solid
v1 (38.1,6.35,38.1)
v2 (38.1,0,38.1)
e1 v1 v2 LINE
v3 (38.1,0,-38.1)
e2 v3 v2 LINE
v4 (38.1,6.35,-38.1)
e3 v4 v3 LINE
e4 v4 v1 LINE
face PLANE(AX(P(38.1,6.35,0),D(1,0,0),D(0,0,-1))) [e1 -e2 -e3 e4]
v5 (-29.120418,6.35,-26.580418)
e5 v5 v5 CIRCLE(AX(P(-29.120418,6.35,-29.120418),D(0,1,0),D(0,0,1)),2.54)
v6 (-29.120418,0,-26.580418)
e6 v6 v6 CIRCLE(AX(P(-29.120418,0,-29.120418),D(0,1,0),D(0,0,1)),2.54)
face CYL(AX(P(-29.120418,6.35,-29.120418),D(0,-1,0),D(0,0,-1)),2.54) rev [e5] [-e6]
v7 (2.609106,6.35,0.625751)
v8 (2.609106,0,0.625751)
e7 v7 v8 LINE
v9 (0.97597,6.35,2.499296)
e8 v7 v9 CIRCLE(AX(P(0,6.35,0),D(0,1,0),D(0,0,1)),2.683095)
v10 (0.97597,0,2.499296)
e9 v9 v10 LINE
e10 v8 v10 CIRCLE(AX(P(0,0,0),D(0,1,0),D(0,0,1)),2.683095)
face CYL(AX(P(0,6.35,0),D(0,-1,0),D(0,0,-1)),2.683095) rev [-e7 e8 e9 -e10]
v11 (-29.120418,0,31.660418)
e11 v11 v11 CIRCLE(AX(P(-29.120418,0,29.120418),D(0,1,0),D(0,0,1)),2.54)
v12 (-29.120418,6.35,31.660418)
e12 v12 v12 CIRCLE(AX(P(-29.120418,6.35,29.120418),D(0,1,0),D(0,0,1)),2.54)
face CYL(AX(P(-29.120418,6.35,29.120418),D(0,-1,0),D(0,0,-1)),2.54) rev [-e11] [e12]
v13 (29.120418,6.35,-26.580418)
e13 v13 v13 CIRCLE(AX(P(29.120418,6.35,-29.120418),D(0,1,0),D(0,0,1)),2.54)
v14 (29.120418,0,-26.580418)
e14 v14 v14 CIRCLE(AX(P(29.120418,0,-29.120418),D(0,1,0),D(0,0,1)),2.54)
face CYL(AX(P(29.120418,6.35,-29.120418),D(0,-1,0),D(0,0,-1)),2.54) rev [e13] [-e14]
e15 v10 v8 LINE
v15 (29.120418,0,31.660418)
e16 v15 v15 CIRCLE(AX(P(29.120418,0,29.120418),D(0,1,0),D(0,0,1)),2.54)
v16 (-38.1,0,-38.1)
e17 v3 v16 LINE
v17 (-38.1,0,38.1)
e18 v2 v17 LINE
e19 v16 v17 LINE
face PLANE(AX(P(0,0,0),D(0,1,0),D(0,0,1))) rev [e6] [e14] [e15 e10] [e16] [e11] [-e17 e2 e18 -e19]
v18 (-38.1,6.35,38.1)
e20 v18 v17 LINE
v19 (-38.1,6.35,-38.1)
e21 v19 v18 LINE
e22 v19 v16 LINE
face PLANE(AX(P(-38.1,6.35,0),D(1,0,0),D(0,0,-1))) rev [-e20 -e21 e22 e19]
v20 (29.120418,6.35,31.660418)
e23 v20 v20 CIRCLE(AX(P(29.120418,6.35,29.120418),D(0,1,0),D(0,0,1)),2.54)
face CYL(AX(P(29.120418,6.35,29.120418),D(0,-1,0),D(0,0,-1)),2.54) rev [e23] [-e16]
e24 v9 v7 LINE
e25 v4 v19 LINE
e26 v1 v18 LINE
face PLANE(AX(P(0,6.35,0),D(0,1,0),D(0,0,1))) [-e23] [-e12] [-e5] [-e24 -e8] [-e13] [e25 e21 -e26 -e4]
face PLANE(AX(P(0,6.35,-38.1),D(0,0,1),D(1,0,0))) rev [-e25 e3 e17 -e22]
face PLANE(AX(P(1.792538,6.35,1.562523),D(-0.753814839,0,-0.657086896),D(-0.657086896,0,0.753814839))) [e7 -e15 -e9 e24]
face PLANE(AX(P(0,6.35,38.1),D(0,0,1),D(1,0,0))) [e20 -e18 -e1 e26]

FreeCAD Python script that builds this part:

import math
import FreeCAD as App
import Part
import Sketcher
from FreeCAD import Vector
Q = App.Units.Quantity


def add_polygon(sketch, points):
    """Adds a closed chain of lines whose ends are joined by coincident constraints."""
    first, n = sketch.GeometryCount, len(points)
    for a, b in zip(points, points[1:] + points[:1]):
        sketch.addGeometry(Part.LineSegment(App.Vector(*a, 0), App.Vector(*b, 0)), False)
    for i in range(n):
        sketch.addConstraint(Sketcher.Constraint("Coincident", first + i, 2, first + (i + 1) % n, 1))

doc = App.newDocument("Part")
body = doc.addObject("PartDesign::Body", "Body")

# Sketch on XZ plane
sketch1 = doc.addObject("Sketcher::SketchObject", "Sketch")
body.addObject(sketch1)
sketch1.AttachmentSupport = (doc.XZ_Plane, [""])
sketch1.MapMode = "FlatFace"
add_polygon(sketch1, [(-38.1, -38.1), (-38.1, 38.1), (38.1, 38.1), (38.1, -38.1)])  # lines 0-3
sketch1.addGeometry(Part.Circle(Vector(-29.1, 29.1, 0), Vector(0, 0, 1), 2.5), False)  # 4
sketch1.addGeometry(Part.Circle(Vector(29.1, 29.1, 0), Vector(0, 0, 1), 2.5), False)  # 5
sketch1.addGeometry(Part.ArcOfCircle(Part.Circle(Vector(0, 0, 0), Vector(0, 0, 1), 2.7), math.radians(69), math.radians(373)), False)  # 6
sketch1.addGeometry(Part.LineSegment(Vector(2.6, 0.6, 0), Vector(1, 2.5, 0)), False)  # 7
sketch1.addGeometry(Part.Circle(Vector(-29.1, -29.1, 0), Vector(0, 0, 1), 2.5), False)  # 8
sketch1.addGeometry(Part.Circle(Vector(29.1, -29.1, 0), Vector(0, 0, 1), 2.5), False)  # 9
sketch1.addConstraint([
    Sketcher.Constraint("Coincident", 6, 1, 7, 2),
    Sketcher.Constraint("Coincident", 7, 1, 6, 2),
    Sketcher.Constraint("Vertical", 0),
    Sketcher.Constraint("Horizontal", 1),
    Sketcher.Constraint("Vertical", 2),
    Sketcher.Constraint("Horizontal", 3),
    Sketcher.Constraint("Coincident", 6, 3, -1, 1),
    Sketcher.Constraint("Equal", 4, 5),
    Sketcher.Constraint("Equal", 5, 8),
    Sketcher.Constraint("Equal", 8, 9),
    Sketcher.Constraint("Symmetric", 5, 3, 8, 3, -1, 1),
    Sketcher.Constraint("Symmetric", 4, 3, 9, 3, -1, 1),
    Sketcher.Constraint("Symmetric", 0, 2, 2, 2, -1, 1),
    Sketcher.Constraint("Symmetric", 4, 3, 5, 3, -2),
    Sketcher.Constraint("Equal", 3, 0),
    Sketcher.Constraint("Diameter", 4, Q("0.2 in")),
    Sketcher.Constraint("DistanceX", 1, 1, 1, 2, Q("3 in")),
    Sketcher.Constraint("Radius", 6, 2.683095),
    Sketcher.Constraint("DistanceX", 4, 3, -1, 1, 29.120418),
    Sketcher.Constraint("DistanceY", -1, 1, 4, 3, 29.120418),
    Sketcher.Constraint("DistanceX", -1, 1, 6, 1, 0.97597),
    Sketcher.Constraint("DistanceY", -1, 1, 7, 1, 0.625751),
])
pad1 = doc.addObject("PartDesign::Pad", "Pad")
body.addObject(pad1)
pad1.Profile = sketch1
pad1.Length = Q("0.25 in")
pad1.Reversed = True

doc.recompute()
